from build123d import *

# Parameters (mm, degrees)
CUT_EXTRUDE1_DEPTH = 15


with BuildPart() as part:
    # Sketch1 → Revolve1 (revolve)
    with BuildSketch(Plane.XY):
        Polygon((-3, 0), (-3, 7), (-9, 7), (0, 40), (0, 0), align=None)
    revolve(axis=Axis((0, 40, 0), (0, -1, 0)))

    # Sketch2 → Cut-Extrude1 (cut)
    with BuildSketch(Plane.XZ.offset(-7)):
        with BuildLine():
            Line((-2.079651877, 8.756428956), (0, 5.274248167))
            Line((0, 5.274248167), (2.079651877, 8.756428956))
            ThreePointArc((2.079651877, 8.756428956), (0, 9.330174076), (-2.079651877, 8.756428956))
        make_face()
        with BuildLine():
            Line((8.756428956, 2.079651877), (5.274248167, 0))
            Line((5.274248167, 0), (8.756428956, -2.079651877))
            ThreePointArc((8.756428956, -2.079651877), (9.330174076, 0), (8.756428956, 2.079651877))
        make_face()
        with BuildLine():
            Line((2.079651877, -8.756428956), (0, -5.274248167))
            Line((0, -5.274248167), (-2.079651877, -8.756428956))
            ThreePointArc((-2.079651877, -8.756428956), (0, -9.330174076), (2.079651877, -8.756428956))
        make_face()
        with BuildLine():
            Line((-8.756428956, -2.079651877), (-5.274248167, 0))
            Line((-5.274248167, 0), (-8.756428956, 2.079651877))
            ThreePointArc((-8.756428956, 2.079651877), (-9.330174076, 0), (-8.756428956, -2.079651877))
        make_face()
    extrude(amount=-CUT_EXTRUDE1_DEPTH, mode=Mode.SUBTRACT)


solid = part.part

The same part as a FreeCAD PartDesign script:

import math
import FreeCAD as App
import Part
import Sketcher

V = App.Vector
Q = App.Units.Quantity

doc = App.newDocument("Part")
body = doc.addObject("PartDesign::Body", "Body")

# Sketch on XY plane
sketch1 = doc.addObject("Sketcher::SketchObject", "Sketch")
body.addObject(sketch1)
sketch1.AttachmentSupport = (doc.XY_Plane, [""])
sketch1.MapMode = "FlatFace"
sketch1.addGeometry([
    Part.LineSegment(V(-3, 7, 0), V(-3, 0, 0)),  # 0
    Part.LineSegment(V(-3, 0, 0), V(0, 0, 0)),  # 1
    Part.LineSegment(V(0, 0, 0), V(0, 40, 0)),  # 2
    Part.LineSegment(V(0, 40, 0), V(-9, 7, 0)),  # 3
    Part.LineSegment(V(-9, 7, 0), V(-3, 7, 0)),  # 4
], False)
sketch1.addConstraint([
    Sketcher.Constraint("Coincident", 0, 2, 1, 1),
    Sketcher.Constraint("Coincident", 1, 2, 2, 1),
    Sketcher.Constraint("Coincident", 2, 2, 3, 1),
    Sketcher.Constraint("Coincident", 3, 2, 4, 1),
    Sketcher.Constraint("Coincident", 4, 2, 0, 1),
    Sketcher.Constraint("Vertical", 0),
    Sketcher.Constraint("Horizontal", 1),
    Sketcher.Constraint("Vertical", 2),
    Sketcher.Constraint("Horizontal", 4),
    Sketcher.Constraint("Coincident", 1, 2, -1, 1),
    Sketcher.Constraint("DistanceX", 1, 1, 1, 2, Q("3 mm")),
    Sketcher.Constraint("DistanceX", 4, 1, 4, 2, Q("6 mm")),
    Sketcher.Constraint("DistanceY", 0, 2, 0, 1, Q("7 mm")),
    Sketcher.Constraint("DistanceY", 2, 1, 2, 2, Q("40 mm")),
])
revolution = doc.addObject("PartDesign::Revolution", "Revolution")
body.addObject(revolution)
revolution.Profile = sketch1
revolution.ReferenceAxis = (sketch1, ["V_Axis"])
revolution.Angle = 360

# Sketch on XZ plane
sketch2 = doc.addObject("Sketcher::SketchObject", "Sketch001")
body.addObject(sketch2)
sketch2.AttachmentSupport = (doc.XZ_Plane, [""])
sketch2.MapMode = "FlatFace"
sketch2.AttachmentOffset = App.Placement(V(0, 0, -7), App.Rotation())
sketch2.addGeometry([
    Part.LineSegment(V(-2.079652, 8.756429, 0), V(0, 5.274248, 0)),  # 0
    Part.LineSegment(V(0, 5.274248, 0), V(2.079652, 8.756429, 0)),  # 1
    Part.ArcOfCircle(Part.Circle(V(0, 5.274248, 0), V(0, 0, 1), 4.055926), math.radians(59.153217), math.radians(120.846783)),  # 2
    Part.LineSegment(V(8.756429, 2.079652, 0), V(5.274248, 0, 0)),  # 3
    Part.LineSegment(V(5.274248, 0, 0), V(8.756429, -2.079652, 0)),  # 4
    Part.ArcOfCircle(Part.Circle(V(5.274248, 0, 0), V(0, 0, 1), 4.055926), math.radians(-30.846783), math.radians(30.846783)),  # 5
    Part.LineSegment(V(2.079652, -8.756429, 0), V(0, -5.274248, 0)),  # 6
    Part.LineSegment(V(0, -5.274248, 0), V(-2.079652, -8.756429, 0)),  # 7
    Part.ArcOfCircle(Part.Circle(V(0, -5.274248, 0), V(0, 0, 1), 4.055926), math.radians(-120.846783), math.radians(-59.153217)),  # 8
    Part.LineSegment(V(-8.756429, -2.079652, 0), V(-5.274248, 0, 0)),  # 9
    Part.LineSegment(V(-5.274248, 0, 0), V(-8.756429, 2.079652, 0)),  # 10
    Part.ArcOfCircle(Part.Circle(V(-5.274248, 0, 0), V(0, 0, 1), 4.055926), math.radians(149.153217), math.radians(210.846783)),  # 11
], False)
sketch2.addConstraint([
    Sketcher.Constraint("Coincident", 0, 2, 1, 1),
    Sketcher.Constraint("Coincident", 1, 2, 2, 1),
    Sketcher.Constraint("Coincident", 2, 2, 0, 1),
    Sketcher.Constraint("Coincident", 3, 2, 4, 1),
    Sketcher.Constraint("Coincident", 4, 2, 5, 1),
    Sketcher.Constraint("Coincident", 5, 2, 3, 1),
    Sketcher.Constraint("Coincident", 6, 2, 7, 1),
    Sketcher.Constraint("Coincident", 7, 2, 8, 1),
    Sketcher.Constraint("Coincident", 8, 2, 6, 1),
    Sketcher.Constraint("Coincident", 9, 2, 10, 1),
    Sketcher.Constraint("Coincident", 10, 2, 11, 1),
    Sketcher.Constraint("Coincident", 11, 2, 9, 1),
    Sketcher.Constraint("Coincident", 0, 2, 2, 3),
    Sketcher.Constraint("Coincident", 3, 2, 5, 3),
    Sketcher.Constraint("Coincident", 6, 2, 8, 3),
    Sketcher.Constraint("Coincident", 9, 2, 11, 3),
    Sketcher.Constraint("Equal", 2, 5),
    Sketcher.Constraint("Equal", 5, 8),
    Sketcher.Constraint("Equal", 8, 11),
    Sketcher.Constraint("Symmetric", 2, 3, 8, 3, -1, 1),
    Sketcher.Constraint("Symmetric", 5, 3, 11, 3, -1, 1),
    Sketcher.Constraint("Symmetric", 1, 2, 2, 2, -2),
    Sketcher.Constraint("Symmetric", 5, 2, 10, 2, -2),
    Sketcher.Constraint("Perpendicular", 0, 3),
    Sketcher.Constraint("Perpendicular", 1, 4),
    Sketcher.Constraint("Perpendicular", 3, 6),
    Sketcher.Constraint("Perpendicular", 4, 7),
    Sketcher.Constraint("Perpendicular", 6, 9),
    Sketcher.Constraint("Radius", 2, Q("4.055926 mm")),
    Sketcher.Constraint("DistanceX", 11, 3, 1, 2, Q("7.3539 mm")),
    Sketcher.Constraint("DistanceY", 4, 2, 0, 2, Q("7.3539 mm")),
    Sketcher.Constraint("DistanceY", -1, 1, 2, 3, Q("5.274248 mm")),
])
pocket1 = doc.addObject("PartDesign::Pocket", "Pocket")
body.addObject(pocket1)
pocket1.Profile = sketch2
pocket1.Length = 15

doc.recompute()
